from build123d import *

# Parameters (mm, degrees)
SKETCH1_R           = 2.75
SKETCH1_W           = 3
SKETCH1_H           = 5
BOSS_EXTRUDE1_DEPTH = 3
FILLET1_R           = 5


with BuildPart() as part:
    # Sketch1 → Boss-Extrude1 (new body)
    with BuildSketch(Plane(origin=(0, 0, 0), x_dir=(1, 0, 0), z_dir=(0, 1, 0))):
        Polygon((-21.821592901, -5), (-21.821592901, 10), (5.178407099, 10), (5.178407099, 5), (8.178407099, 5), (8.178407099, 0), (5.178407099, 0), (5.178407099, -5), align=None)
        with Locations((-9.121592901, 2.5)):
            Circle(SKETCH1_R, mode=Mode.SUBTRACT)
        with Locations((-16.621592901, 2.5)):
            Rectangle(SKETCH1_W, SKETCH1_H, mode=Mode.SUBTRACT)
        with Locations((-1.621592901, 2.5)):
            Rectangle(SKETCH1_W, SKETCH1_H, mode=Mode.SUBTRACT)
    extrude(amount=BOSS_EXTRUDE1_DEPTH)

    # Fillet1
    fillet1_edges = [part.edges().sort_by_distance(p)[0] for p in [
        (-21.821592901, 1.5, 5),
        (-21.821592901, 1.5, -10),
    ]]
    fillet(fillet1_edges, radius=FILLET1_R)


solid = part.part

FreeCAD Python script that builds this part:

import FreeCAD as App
import Part
import Sketcher
from FreeCAD import Vector
Q = App.Units.Quantity


def edges_at(feature, points):
    """Names of the edges that pass closest to the given points."""
    edges = feature.Shape.Edges
    near = lambda p: min(range(len(edges)), key=lambda i: edges[i].distToShape(Part.Vertex(*p))[0])
    return sorted({f"Edge{near(p) + 1}" for p in points})


def add_polygon(sketch, points):
    """Adds a closed chain of lines whose ends are joined by coincident constraints."""
    first, n = sketch.GeometryCount, len(points)
    for a, b in zip(points, points[1:] + points[:1]):
        sketch.addGeometry(Part.LineSegment(App.Vector(*a, 0), App.Vector(*b, 0)), False)
    for i in range(n):
        sketch.addConstraint(Sketcher.Constraint("Coincident", first + i, 2, first + (i + 1) % n, 1))

doc = App.newDocument("Part")
body = doc.addObject("PartDesign::Body", "Body")

sketch1 = doc.addObject("Sketcher::SketchObject", "Sketch")
body.addObject(sketch1)
sketch1.AttachmentSupport = (doc.XZ_Plane, [""])
sketch1.MapMode = "FlatFace"
add_polygon(sketch1, [(-21.821593, -10), (-21.821593, 5), (5.178407, 5), (5.178407, 0), (8.178407, 0), (8.178407, -5), (5.178407, -5), (5.178407, -10)])
add_polygon(sketch1, [(-3.121593, 0), (-3.121593, -5), (-0.121593, -5), (-0.121593, 0)])
sketch1.addGeometry(Part.Circle(Vector(-9.121593, -2.5, 0), Vector(0, 0, 1), 2.75), False)
add_polygon(sketch1, [(-18.121593, 0), (-18.121593, -5), (-15.121593, -5), (-15.121593, 0)])
sketch1.addConstraint(Sketcher.Constraint("Vertical", 0))
sketch1.addConstraint(Sketcher.Constraint("Horizontal", 1))
sketch1.addConstraint(Sketcher.Constraint("Vertical", 2))
sketch1.addConstraint(Sketcher.Constraint("Horizontal", 3))
sketch1.addConstraint(Sketcher.Constraint("Vertical", 4))
sketch1.addConstraint(Sketcher.Constraint("Horizontal", 5))
sketch1.addConstraint(Sketcher.Constraint("Vertical", 6))
sketch1.addConstraint(Sketcher.Constraint("Horizontal", 7))
sketch1.addConstraint(Sketcher.Constraint("Vertical", 8))
sketch1.addConstraint(Sketcher.Constraint("Horizontal", 9))
sketch1.addConstraint(Sketcher.Constraint("Vertical", 10))
sketch1.addConstraint(Sketcher.Constraint("Horizontal", 11))
sketch1.addConstraint(Sketcher.Constraint("Vertical", 13))
sketch1.addConstraint(Sketcher.Constraint("Horizontal", 14))
sketch1.addConstraint(Sketcher.Constraint("Vertical", 15))
sketch1.addConstraint(Sketcher.Constraint("Horizontal", 16))
sketch1.addConstraint(Sketcher.Constraint("Symmetric", 1, 2, 5, 2, -1))
sketch1.addConstraint(Sketcher.Constraint("PointOnObject", 2, 2, -1))
sketch1.addConstraint(Sketcher.Constraint("PointOnObject", 10, 2, -1))
sketch1.addConstraint(Sketcher.Constraint("PointOnObject", 15, 2, -1))
sketch1.addConstraint(Sketcher.Constraint("Horizontal", 5, 2, 8, 2))
sketch1.addConstraint(Sketcher.Constraint("Horizontal", 9, 2, 13, 2))
sketch1.addConstraint(Sketcher.Constraint("Equal", 5, 9))
sketch1.addConstraint(Sketcher.Constraint("Equal", 11, 14))
sketch1.addConstraint(Sketcher.Constraint("Equal", 4, 6))
sketch1.addConstraint(Sketcher.Constraint("Diameter", 12, Q("5.5 mm")))
sketch1.addConstraint(Sketcher.Constraint("DistanceX", 1, 1, 1, 2, Q("27 mm")))
sketch1.addConstraint(Sketcher.Constraint("DistanceX", 3, 1, 3, 2, Q("3 mm")))
sketch1.addConstraint(Sketcher.Constraint("DistanceY", 0, 1, 0, 2, Q("15 mm")))
sketch1.addConstraint(Sketcher.Constraint("DistanceX", 12, 3, 8, 2, Q("6 mm")))
sketch1.addConstraint(Sketcher.Constraint("DistanceX", 13, 2, 12, 3, Q("9 mm")))
sketch1.addConstraint(Sketcher.Constraint("DistanceY", 12, 3, -1, 1, Q("2.5 mm")))
sketch1.addConstraint(Sketcher.Constraint("DistanceX", 0, 2, 12, 3, Q("12.7 mm")))
sketch1.addConstraint(Sketcher.Constraint("DistanceX", 12, 3, -1, 1, Q("9.121593 mm")))
pad1 = doc.addObject("PartDesign::Pad", "Pad")
body.addObject(pad1)
pad1.Profile = sketch1
pad1.Length = 3
pad1.Reversed = True
doc.recompute()

fillet = doc.addObject("PartDesign::Fillet", "Fillet")
body.addObject(fillet)
fillet.Base = (pad1, edges_at(pad1, [(-21.822, 1.5, 5), (-21.822, 1.5, -10)]))
fillet.Radius = 5

doc.recompute()
